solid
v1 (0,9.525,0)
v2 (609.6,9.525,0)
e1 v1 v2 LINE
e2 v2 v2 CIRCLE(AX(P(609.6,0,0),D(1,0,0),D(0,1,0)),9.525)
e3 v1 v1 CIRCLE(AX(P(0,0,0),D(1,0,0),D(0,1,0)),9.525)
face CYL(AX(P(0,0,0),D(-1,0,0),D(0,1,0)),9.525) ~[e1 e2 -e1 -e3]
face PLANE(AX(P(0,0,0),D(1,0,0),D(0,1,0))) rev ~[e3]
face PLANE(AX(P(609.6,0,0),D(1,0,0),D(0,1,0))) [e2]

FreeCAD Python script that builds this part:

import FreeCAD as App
import Part
import Sketcher
Q = App.Units.Quantity

doc = App.newDocument("Part")
params = doc.addObject("Spreadsheet::Sheet", "Params")
for row, (alias, value) in enumerate([
    ("sketch1_diameter", "0.75 in"),
    ("pad1_length", "24 in"),
], start=1):
    params.set(f"A{row}", alias)
    params.set(f"B{row}", "=" + value)
    params.setAlias(f"B{row}", alias)

body = doc.addObject("PartDesign::Body", "Body")

# Sketch on YZ plane
sketch1 = doc.addObject("Sketcher::SketchObject", "Sketch")
body.addObject(sketch1)
sketch1.AttachmentSupport = (doc.YZ_Plane, [""])
sketch1.MapMode = "FlatFace"
sketch1.addGeometry(Part.Circle(App.Vector(0, 0, 0), App.Vector(0, 0, 1), 10), False)
sketch1.addConstraint(Sketcher.Constraint("Coincident", 0, 3, -1, 1))
sketch1.addConstraint(Sketcher.Constraint("Diameter", 0, Q("0.75 in")))
sketch1.setExpression("Constraints[1]", "Params.sketch1_diameter")
pad1 = doc.addObject("PartDesign::Pad", "Pad")
body.addObject(pad1)
pad1.Profile = sketch1
pad1.setExpression("Length", "Params.pad1_length")

doc.recompute()
